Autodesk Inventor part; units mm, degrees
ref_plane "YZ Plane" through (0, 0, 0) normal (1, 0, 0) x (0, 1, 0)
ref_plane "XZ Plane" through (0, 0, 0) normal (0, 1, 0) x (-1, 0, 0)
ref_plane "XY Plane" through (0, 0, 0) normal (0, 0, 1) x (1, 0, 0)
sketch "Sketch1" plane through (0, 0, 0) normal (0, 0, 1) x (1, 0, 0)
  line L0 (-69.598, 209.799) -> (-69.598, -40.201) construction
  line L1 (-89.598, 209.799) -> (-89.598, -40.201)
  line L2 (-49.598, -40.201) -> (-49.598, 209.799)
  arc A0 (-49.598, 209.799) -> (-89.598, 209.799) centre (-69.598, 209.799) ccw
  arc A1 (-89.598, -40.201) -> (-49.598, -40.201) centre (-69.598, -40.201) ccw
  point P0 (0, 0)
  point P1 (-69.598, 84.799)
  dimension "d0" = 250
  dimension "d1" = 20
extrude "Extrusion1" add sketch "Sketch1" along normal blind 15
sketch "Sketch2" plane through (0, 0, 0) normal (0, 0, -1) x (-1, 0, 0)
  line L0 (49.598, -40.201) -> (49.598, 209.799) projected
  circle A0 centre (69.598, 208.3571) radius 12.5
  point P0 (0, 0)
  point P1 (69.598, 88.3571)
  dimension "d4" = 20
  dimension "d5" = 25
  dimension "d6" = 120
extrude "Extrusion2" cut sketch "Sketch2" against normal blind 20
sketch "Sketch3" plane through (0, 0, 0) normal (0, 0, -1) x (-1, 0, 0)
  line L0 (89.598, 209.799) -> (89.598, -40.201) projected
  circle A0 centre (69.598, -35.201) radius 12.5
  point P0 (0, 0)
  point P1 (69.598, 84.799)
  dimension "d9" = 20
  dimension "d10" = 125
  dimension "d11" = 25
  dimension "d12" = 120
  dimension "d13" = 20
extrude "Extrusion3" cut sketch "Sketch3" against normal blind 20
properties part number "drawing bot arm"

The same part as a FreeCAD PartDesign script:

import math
import FreeCAD as App
import Part
import Sketcher

doc = App.newDocument("Part")
body = doc.addObject("PartDesign::Body", "Body")

sketch1 = body.newObject("Sketcher::SketchObject", "Sketch")
sketch1.AttachmentSupport = (doc.getObject("XY_Plane"), [""])
sketch1.MapMode = "FlatFace"
sketch1.addGeometry([
    Part.ArcOfCircle(Part.Circle(App.Vector(-69.598, 209.799, 0), App.Vector(0, 0, 1), 20), math.radians(0), math.radians(180)),
    Part.LineSegment(App.Vector(-89.598, 209.799, 0), App.Vector(-89.598, -40.201, 0)),
    Part.ArcOfCircle(Part.Circle(App.Vector(-69.598, -40.201, 0), App.Vector(0, 0, 1), 20), math.radians(180), math.radians(360)),
    Part.LineSegment(App.Vector(-49.598, -40.201, 0), App.Vector(-49.598, 209.799, 0)),
], False)
sketch1.addConstraint([
    Sketcher.Constraint("Tangent", 0, 2, 1, 1),
    Sketcher.Constraint("Tangent", 1, 2, 2, 1),
    Sketcher.Constraint("Tangent", 2, 2, 3, 1),
    Sketcher.Constraint("Tangent", 3, 2, 0, 1),
    Sketcher.Constraint("Vertical", 1),
    Sketcher.Constraint("Vertical", 3),
    Sketcher.Constraint("Radius", 0, 20.0),
    Sketcher.Constraint("DistanceY", 1, 2, 1, 1, 250.0),
    Sketcher.Constraint("DistanceX", 0, 3, -1, 1, 69.598),
    Sketcher.Constraint("DistanceY", -1, 1, 0, 3, 209.799),
])
pad1 = body.newObject("PartDesign::Pad", "Pad")
pad1.Profile = sketch1
pad1.Length = 15

sketch2 = body.newObject("Sketcher::SketchObject", "Sketch001")
sketch2.AttachmentSupport = (doc.getObject("XY_Plane"), [""])
sketch2.MapMode = "FlatFace"
sketch2.addGeometry(Part.Circle(App.Vector(-69.598, 208.3571, 0), App.Vector(0, 0, 1), 12.5), False)
sketch2.addConstraint([
    Sketcher.Constraint("Diameter", 0, 25.0),
    Sketcher.Constraint("DistanceX", 0, 3, -1, 1, 69.598),
    Sketcher.Constraint("DistanceY", -1, 1, 0, 3, 208.357),
])
pocket1 = body.newObject("PartDesign::Pocket", "Pocket")
pocket1.Profile = sketch2
pocket1.Length = 20
pocket1.Reversed = True

sketch3 = body.newObject("Sketcher::SketchObject", "Sketch002")
sketch3.AttachmentSupport = (doc.getObject("XY_Plane"), [""])
sketch3.MapMode = "FlatFace"
sketch3.addGeometry(Part.Circle(App.Vector(-69.598, -35.201, 0), App.Vector(0, 0, 1), 12.5), False)
sketch3.addConstraint([
    Sketcher.Constraint("Diameter", 0, 25.0),
    Sketcher.Constraint("DistanceX", 0, 3, -1, 1, 69.598),
    Sketcher.Constraint("DistanceY", 0, 3, -1, 1, 35.201),
])
pocket2 = body.newObject("PartDesign::Pocket", "Pocket001")
pocket2.Profile = sketch3
pocket2.Length = 20
pocket2.Reversed = True

doc.recompute()
